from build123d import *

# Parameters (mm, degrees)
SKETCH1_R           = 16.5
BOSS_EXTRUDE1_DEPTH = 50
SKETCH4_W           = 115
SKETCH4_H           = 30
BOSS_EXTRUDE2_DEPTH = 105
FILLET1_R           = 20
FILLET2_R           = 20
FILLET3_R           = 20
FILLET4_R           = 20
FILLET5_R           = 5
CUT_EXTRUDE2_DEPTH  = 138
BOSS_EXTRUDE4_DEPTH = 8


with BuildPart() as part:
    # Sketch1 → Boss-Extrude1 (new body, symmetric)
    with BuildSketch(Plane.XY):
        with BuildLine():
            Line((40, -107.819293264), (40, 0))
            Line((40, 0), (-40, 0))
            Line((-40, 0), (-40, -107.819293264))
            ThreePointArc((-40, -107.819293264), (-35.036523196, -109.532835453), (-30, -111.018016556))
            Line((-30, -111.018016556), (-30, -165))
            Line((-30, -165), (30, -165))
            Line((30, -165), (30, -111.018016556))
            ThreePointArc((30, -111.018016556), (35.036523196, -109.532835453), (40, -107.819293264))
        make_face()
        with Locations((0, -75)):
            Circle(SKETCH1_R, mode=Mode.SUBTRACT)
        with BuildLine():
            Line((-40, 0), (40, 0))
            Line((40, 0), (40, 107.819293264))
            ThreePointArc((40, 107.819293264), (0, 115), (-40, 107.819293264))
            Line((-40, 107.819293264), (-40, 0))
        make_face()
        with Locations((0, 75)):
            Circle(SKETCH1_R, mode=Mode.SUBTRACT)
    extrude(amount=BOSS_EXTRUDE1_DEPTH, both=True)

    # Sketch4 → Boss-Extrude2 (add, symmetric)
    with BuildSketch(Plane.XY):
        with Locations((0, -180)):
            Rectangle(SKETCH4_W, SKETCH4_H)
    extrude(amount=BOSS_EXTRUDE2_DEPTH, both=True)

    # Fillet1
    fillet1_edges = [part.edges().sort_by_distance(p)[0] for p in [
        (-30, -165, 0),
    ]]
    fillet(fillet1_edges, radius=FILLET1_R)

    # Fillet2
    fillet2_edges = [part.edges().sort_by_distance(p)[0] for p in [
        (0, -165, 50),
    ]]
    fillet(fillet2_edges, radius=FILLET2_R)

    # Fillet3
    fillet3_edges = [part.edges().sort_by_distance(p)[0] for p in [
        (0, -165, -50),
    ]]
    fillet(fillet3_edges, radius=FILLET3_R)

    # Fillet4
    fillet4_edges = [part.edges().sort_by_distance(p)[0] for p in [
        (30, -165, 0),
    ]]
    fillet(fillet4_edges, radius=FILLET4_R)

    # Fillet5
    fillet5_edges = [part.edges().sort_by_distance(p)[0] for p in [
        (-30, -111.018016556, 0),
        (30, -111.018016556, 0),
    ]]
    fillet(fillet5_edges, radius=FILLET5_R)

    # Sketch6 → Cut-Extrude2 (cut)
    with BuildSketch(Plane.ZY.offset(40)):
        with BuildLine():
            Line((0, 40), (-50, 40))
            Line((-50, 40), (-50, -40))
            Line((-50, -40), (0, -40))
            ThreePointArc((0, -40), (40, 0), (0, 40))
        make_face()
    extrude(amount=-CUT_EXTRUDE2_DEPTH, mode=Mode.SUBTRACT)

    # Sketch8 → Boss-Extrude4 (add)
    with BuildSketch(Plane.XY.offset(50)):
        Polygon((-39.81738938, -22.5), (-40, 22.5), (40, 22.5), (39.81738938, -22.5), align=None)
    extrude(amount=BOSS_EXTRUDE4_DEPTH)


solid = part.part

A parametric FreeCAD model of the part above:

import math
import FreeCAD as App
import Part
import Sketcher

V = App.Vector


def edges_at(feature, points):
    """Names of the edges that pass closest to the given points."""
    edges = feature.Shape.Edges
    near = lambda p: min(range(len(edges)), key=lambda i: edges[i].distToShape(Part.Vertex(*p))[0])
    return sorted({f"Edge{near(p) + 1}" for p in points})

doc = App.newDocument("Part")
params = doc.addObject("Spreadsheet::Sheet", "Params")
for row, (alias, value) in enumerate([
    ("sketch1_diameter", "33 mm"),
    ("sketch1_radius", "115 mm"),
    ("sketch1_width", "60 mm"),
    ("pad1_length", "100 mm"),
    ("sketch2_width", "115 mm"),
    ("sketch2_height", "30 mm"),
    ("pad2_length", "210 mm"),
    ("fillet_radius", "20 mm"),
    ("fillet2_radius", "20 mm"),
    ("fillet3_radius", "20 mm"),
    ("fillet4_radius", "20 mm"),
    ("fillet5_radius", "5 mm"),
    ("sketch3_radius", "40 mm"),
    ("sketch3_height", "50 mm"),
    ("pocket1_length", "138 mm"),
    ("sketch4_width", "80 mm"),
    ("pad3_length", "8 mm"),
], start=1):
    params.set(f"A{row}", alias)
    params.set(f"B{row}", "=" + value)
    params.setAlias(f"B{row}", alias)

body = doc.addObject("PartDesign::Body", "Body")

sketch1 = body.newObject("Sketcher::SketchObject", "Sketch")
sketch1.AttachmentSupport = (doc.getObject("XY_Plane"), [""])
sketch1.MapMode = "FlatFace"
sketch1.addGeometry(Part.LineSegment(V(40, -107.819293, 0), V(40, 107.819293, 0)), False)
sketch1.addGeometry(Part.ArcOfCircle(Part.Circle(V(0, 0, 0), V(0, 0, 1), 115), math.radians(69.645594), math.radians(110.354406)), False)
sketch1.addGeometry(Part.LineSegment(V(-40, 107.819293, 0), V(-40, -107.819293, 0)), False)
sketch1.addGeometry(Part.ArcOfCircle(Part.Circle(V(0, 0, 0), V(0, 0, 1), 115), math.radians(-110.354406), math.radians(-105.121665)), False)
sketch1.addGeometry(Part.LineSegment(V(-30, -111.018017, 0), V(-30, -165, 0)), False)
sketch1.addGeometry(Part.LineSegment(V(-30, -165, 0), V(30, -165, 0)), False)
sketch1.addGeometry(Part.LineSegment(V(30, -165, 0), V(30, -111.018017, 0)), False)
sketch1.addGeometry(Part.ArcOfCircle(Part.Circle(V(0, 0, 0), V(0, 0, 1), 115), math.radians(-74.878335), math.radians(-69.645594)), False)
sketch1.addGeometry(Part.Circle(V(0, -75, 0), V(0, 0, 1), 16.5), False)
sketch1.addGeometry(Part.Circle(V(0, 75, 0), V(0, 0, 1), 16.5), False)
sketch1.addConstraint(Sketcher.Constraint("Coincident", 0, 2, 1, 1))
sketch1.addConstraint(Sketcher.Constraint("Coincident", 1, 2, 2, 1))
sketch1.addConstraint(Sketcher.Constraint("Coincident", 2, 2, 3, 1))
sketch1.addConstraint(Sketcher.Constraint("Coincident", 3, 2, 4, 1))
sketch1.addConstraint(Sketcher.Constraint("Coincident", 4, 2, 5, 1))
sketch1.addConstraint(Sketcher.Constraint("Coincident", 5, 2, 6, 1))
sketch1.addConstraint(Sketcher.Constraint("Coincident", 6, 2, 7, 1))
sketch1.addConstraint(Sketcher.Constraint("Coincident", 7, 2, 0, 1))
sketch1.addConstraint(Sketcher.Constraint("Vertical", 0))
sketch1.addConstraint(Sketcher.Constraint("Vertical", 2))
sketch1.addConstraint(Sketcher.Constraint("Vertical", 4))
sketch1.addConstraint(Sketcher.Constraint("Horizontal", 5))
sketch1.addConstraint(Sketcher.Constraint("Vertical", 6))
sketch1.addConstraint(Sketcher.Constraint("Coincident", 1, 3, -1, 1))
sketch1.addConstraint(Sketcher.Constraint("Coincident", 3, 3, -1, 1))
sketch1.addConstraint(Sketcher.Constraint("Coincident", 7, 3, -1, 1))
sketch1.addConstraint(Sketcher.Constraint("Equal", 1, 3))
sketch1.addConstraint(Sketcher.Constraint("Equal", 3, 7))
sketch1.addConstraint(Sketcher.Constraint("Equal", 8, 9))
sketch1.addConstraint(Sketcher.Constraint("Symmetric", 8, 3, 9, 3, -1, 1))
sketch1.addConstraint(Sketcher.Constraint("PointOnObject", 8, 3, -2))
sketch1.addConstraint(Sketcher.Constraint("Horizontal", 0, 2, 1, 2))
sketch1.addConstraint(Sketcher.Constraint("Horizontal", 3, 2, 6, 2))
sketch1.addConstraint(Sketcher.Constraint("Diameter", 8, 33.0))
sketch1.addConstraint(Sketcher.Constraint("Radius", 1, 115.0))
sketch1.addConstraint(Sketcher.Constraint("DistanceX", 5, 1, 5, 2, 60.0))
sketch1.addConstraint(Sketcher.Constraint("DistanceY", 8, 3, -1, 1, 75.0))
sketch1.addConstraint(Sketcher.Constraint("DistanceX", -1, 1, 0, 2, 40.0))
sketch1.addConstraint(Sketcher.Constraint("DistanceY", 4, 2, -1, 1, 165.0))
sketch1.setExpression("Constraints[23]", "Params.sketch1_diameter")
sketch1.setExpression("Constraints[24]", "Params.sketch1_radius")
sketch1.setExpression("Constraints[25]", "Params.sketch1_width")
pad1 = body.newObject("PartDesign::Pad", "Pad")
pad1.Profile = sketch1
pad1.setExpression("Length", "Params.pad1_length")
pad1.Midplane = True

sketch2 = body.newObject("Sketcher::SketchObject", "Sketch001")
sketch2.AttachmentSupport = (doc.getObject("XY_Plane"), [""])
sketch2.MapMode = "FlatFace"
sketch2.addGeometry(Part.LineSegment(V(-57.5, -165, 0), V(-57.5, -195, 0)), False)
sketch2.addGeometry(Part.LineSegment(V(-57.5, -195, 0), V(57.5, -195, 0)), False)
sketch2.addGeometry(Part.LineSegment(V(57.5, -195, 0), V(57.5, -165, 0)), False)
sketch2.addGeometry(Part.LineSegment(V(57.5, -165, 0), V(-57.5, -165, 0)), False)
sketch2.addConstraint(Sketcher.Constraint("Coincident", 0, 2, 1, 1))
sketch2.addConstraint(Sketcher.Constraint("Coincident", 1, 2, 2, 1))
sketch2.addConstraint(Sketcher.Constraint("Coincident", 2, 2, 3, 1))
sketch2.addConstraint(Sketcher.Constraint("Coincident", 3, 2, 0, 1))
sketch2.addConstraint(Sketcher.Constraint("Vertical", 0))
sketch2.addConstraint(Sketcher.Constraint("Horizontal", 1))
sketch2.addConstraint(Sketcher.Constraint("Vertical", 2))
sketch2.addConstraint(Sketcher.Constraint("Horizontal", 3))
sketch2.addConstraint(Sketcher.Constraint("DistanceX", 1, 1, 1, 2, 115.0))
sketch2.addConstraint(Sketcher.Constraint("DistanceY", 0, 2, 0, 1, 30.0))
sketch2.addConstraint(Sketcher.Constraint("DistanceY", 0, 2, -1, 1, 195.0))
sketch2.addConstraint(Sketcher.Constraint("DistanceX", 0, 2, -1, 1, 57.5))
sketch2.setExpression("Constraints[8]", "Params.sketch2_width")
sketch2.setExpression("Constraints[9]", "Params.sketch2_height")
pad2 = body.newObject("PartDesign::Pad", "Pad001")
pad2.Profile = sketch2
pad2.setExpression("Length", "Params.pad2_length")
pad2.Midplane = True
doc.recompute()

fillet = body.newObject("PartDesign::Fillet", "Fillet")
fillet.Base = (pad2, edges_at(pad2, [(-30, -165, 0)]))
fillet.setExpression("Radius", "Params.fillet_radius")
doc.recompute()

fillet2 = body.newObject("PartDesign::Fillet", "Fillet001")
fillet2.Base = (fillet, edges_at(fillet, [(-10, -165, 50)]))
fillet2.setExpression("Radius", "Params.fillet2_radius")
doc.recompute()

fillet3 = body.newObject("PartDesign::Fillet", "Fillet002")
fillet3.Base = (fillet2, edges_at(fillet2, [(-10, -165, -50)]))
fillet3.setExpression("Radius", "Params.fillet3_radius")
doc.recompute()

fillet4 = body.newObject("PartDesign::Fillet", "Fillet003")
fillet4.Base = (fillet3, edges_at(fillet3, [(30, -165, 0)]))
fillet4.setExpression("Radius", "Params.fillet4_radius")
doc.recompute()

fillet5 = body.newObject("PartDesign::Fillet", "Fillet004")
fillet5.Base = (fillet4, edges_at(fillet4, [(-30, -111.018, 0), (30, -111.018, 0)]))
fillet5.setExpression("Radius", "Params.fillet5_radius")

sketch3 = body.newObject("Sketcher::SketchObject", "Sketch002")
sketch3.AttachmentSupport = (doc.getObject("YZ_Plane"), [""])
sketch3.MapMode = "FlatFace"
sketch3.AttachmentOffset = App.Placement(V(0, 0, -40), App.Rotation())
sketch3.addGeometry(Part.LineSegment(V(40, 0, 0), V(40, -50, 0)), False)
sketch3.addGeometry(Part.LineSegment(V(40, -50, 0), V(-40, -50, 0)), False)
sketch3.addGeometry(Part.LineSegment(V(-40, -50, 0), V(-40, 0, 0)), False)
sketch3.addGeometry(Part.ArcOfCircle(Part.Circle(V(0, 0, 0), V(0, 0, 1), 40), math.radians(0), math.radians(180)), False)
sketch3.addConstraint(Sketcher.Constraint("Coincident", 0, 2, 1, 1))
sketch3.addConstraint(Sketcher.Constraint("Coincident", 1, 2, 2, 1))
sketch3.addConstraint(Sketcher.Constraint("Tangent", 2, 2, 3, 2))
sketch3.addConstraint(Sketcher.Constraint("Tangent", 3, 1, 0, 1))
sketch3.addConstraint(Sketcher.Constraint("Vertical", 0))
sketch3.addConstraint(Sketcher.Constraint("Horizontal", 1))
sketch3.addConstraint(Sketcher.Constraint("Vertical", 2))
sketch3.addConstraint(Sketcher.Constraint("Coincident", 3, 3, -1, 1))
sketch3.addConstraint(Sketcher.Constraint("Radius", 3, 40.0))
sketch3.addConstraint(Sketcher.Constraint("DistanceY", 0, 2, 0, 1, 50.0))
sketch3.setExpression("Constraints[8]", "Params.sketch3_radius")
sketch3.setExpression("Constraints[9]", "Params.sketch3_height")
pocket1 = body.newObject("PartDesign::Pocket", "Pocket")
pocket1.Profile = sketch3
pocket1.setExpression("Length", "Params.pocket1_length")
pocket1.Reversed = True

sketch4 = body.newObject("Sketcher::SketchObject", "Sketch003")
sketch4.AttachmentSupport = (doc.getObject("XY_Plane"), [""])
sketch4.MapMode = "FlatFace"
sketch4.AttachmentOffset = App.Placement(V(0, 0, 50), App.Rotation())
sketch4.addGeometry(Part.LineSegment(V(-40, 22.5, 0), V(-39.817389, -22.5, 0)), False)
sketch4.addGeometry(Part.LineSegment(V(-39.817389, -22.5, 0), V(39.817389, -22.5, 0)), False)
sketch4.addGeometry(Part.LineSegment(V(39.817389, -22.5, 0), V(40, 22.5, 0)), False)
sketch4.addGeometry(Part.LineSegment(V(40, 22.5, 0), V(-40, 22.5, 0)), False)
sketch4.addConstraint(Sketcher.Constraint("Coincident", 0, 2, 1, 1))
sketch4.addConstraint(Sketcher.Constraint("Coincident", 1, 2, 2, 1))
sketch4.addConstraint(Sketcher.Constraint("Coincident", 2, 2, 3, 1))
sketch4.addConstraint(Sketcher.Constraint("Coincident", 3, 2, 0, 1))
sketch4.addConstraint(Sketcher.Constraint("Horizontal", 1))
sketch4.addConstraint(Sketcher.Constraint("Horizontal", 3))
sketch4.addConstraint(Sketcher.Constraint("Equal", 0, 2))
sketch4.addConstraint(Sketcher.Constraint("DistanceX", 3, 2, 3, 1, 80.0))
sketch4.addConstraint(Sketcher.Constraint("DistanceX", -1, 1, 2, 2, 40.0))
sketch4.addConstraint(Sketcher.Constraint("DistanceY", 1, 2, 2, 2, 45.0))
sketch4.addConstraint(Sketcher.Constraint("DistanceY", 0, 2, -1, 1, 22.5))
sketch4.addConstraint(Sketcher.Constraint("DistanceX", 1, 1, 1, 2, 79.634779))
sketch4.setExpression("Constraints[7]", "Params.sketch4_width")
pad3 = body.newObject("PartDesign::Pad", "Pad002")
pad3.Profile = sketch4
pad3.setExpression("Length", "Params.pad3_length")

doc.recompute()
